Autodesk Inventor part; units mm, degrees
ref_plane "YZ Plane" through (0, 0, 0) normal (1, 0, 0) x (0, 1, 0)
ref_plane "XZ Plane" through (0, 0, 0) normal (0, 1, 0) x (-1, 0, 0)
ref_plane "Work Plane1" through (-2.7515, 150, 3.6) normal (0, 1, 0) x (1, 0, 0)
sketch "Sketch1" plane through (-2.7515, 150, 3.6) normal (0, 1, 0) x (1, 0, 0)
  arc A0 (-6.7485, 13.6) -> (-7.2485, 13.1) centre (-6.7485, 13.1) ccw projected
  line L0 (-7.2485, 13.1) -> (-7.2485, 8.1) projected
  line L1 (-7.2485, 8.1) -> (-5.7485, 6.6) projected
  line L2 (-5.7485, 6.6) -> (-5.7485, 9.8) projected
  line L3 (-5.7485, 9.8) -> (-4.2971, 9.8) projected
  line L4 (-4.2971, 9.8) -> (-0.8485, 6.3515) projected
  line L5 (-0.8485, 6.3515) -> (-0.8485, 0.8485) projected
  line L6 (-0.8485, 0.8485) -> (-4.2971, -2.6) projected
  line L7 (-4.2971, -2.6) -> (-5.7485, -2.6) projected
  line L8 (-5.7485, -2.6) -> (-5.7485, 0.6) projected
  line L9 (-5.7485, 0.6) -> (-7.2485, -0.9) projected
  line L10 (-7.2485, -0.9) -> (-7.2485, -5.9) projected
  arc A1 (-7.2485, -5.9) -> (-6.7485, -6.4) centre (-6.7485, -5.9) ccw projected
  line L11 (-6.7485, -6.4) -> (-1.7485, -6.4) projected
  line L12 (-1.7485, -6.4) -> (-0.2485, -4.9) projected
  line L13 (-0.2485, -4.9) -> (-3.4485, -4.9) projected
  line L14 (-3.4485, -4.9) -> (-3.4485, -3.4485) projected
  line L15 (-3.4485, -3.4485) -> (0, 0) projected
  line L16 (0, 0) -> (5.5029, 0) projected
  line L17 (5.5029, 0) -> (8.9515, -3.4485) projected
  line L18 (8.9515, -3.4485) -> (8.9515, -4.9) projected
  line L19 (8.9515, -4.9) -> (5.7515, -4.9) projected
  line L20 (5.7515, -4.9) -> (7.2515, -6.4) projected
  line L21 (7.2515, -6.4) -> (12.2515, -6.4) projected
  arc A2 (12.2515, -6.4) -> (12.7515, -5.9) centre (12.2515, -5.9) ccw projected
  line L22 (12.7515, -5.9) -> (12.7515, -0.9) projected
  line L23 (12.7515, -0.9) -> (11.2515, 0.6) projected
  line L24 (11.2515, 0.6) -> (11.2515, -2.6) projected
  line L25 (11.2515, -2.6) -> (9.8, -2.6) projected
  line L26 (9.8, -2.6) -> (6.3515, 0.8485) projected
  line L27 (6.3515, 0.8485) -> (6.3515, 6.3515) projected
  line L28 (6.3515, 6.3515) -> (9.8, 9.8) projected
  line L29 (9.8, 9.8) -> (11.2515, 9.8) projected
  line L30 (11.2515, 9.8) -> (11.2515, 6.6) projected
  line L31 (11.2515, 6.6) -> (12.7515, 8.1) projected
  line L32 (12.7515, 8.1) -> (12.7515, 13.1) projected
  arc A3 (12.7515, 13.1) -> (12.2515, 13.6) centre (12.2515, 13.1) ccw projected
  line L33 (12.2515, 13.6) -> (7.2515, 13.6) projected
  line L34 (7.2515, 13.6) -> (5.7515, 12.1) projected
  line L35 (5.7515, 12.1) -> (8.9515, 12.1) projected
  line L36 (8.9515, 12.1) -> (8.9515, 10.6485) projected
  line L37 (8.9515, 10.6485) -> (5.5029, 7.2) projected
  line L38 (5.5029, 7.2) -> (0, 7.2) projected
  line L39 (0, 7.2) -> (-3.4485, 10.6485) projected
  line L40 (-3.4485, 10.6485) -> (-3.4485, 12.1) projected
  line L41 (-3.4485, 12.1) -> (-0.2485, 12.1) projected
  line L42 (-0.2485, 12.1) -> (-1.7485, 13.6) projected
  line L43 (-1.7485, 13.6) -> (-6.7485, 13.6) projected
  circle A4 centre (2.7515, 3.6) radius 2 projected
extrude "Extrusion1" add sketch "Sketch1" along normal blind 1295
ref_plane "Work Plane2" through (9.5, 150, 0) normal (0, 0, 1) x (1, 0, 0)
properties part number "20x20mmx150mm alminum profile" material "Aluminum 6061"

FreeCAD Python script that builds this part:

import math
import FreeCAD as App
import Part
import Sketcher
from FreeCAD import Vector

doc = App.newDocument("Part")
body = doc.addObject("PartDesign::Body", "Body")

# Sketch on XZ plane
sketch1 = body.newObject("Sketcher::SketchObject", "Sketch")
sketch1.AttachmentSupport = (doc.getObject("XZ_Plane"), [""])
sketch1.MapMode = "FlatFace"
sketch1.AttachmentOffset = App.Placement(Vector(0, 0, -150), App.Rotation())
sketch1.addGeometry(Part.LineSegment(Vector(-4.5, -10, 0), Vector(-9.5, -10, 0)), False)
sketch1.addGeometry(Part.ArcOfCircle(Part.Circle(Vector(-9.5, -9.5, 0), Vector(0, 0, 1), 0.5), math.radians(180), math.radians(270)), False)
sketch1.addGeometry(Part.LineSegment(Vector(-10, -9.5, 0), Vector(-10, -4.5, 0)), False)
sketch1.addGeometry(Part.LineSegment(Vector(-10, -4.5, 0), Vector(-8.5, -3, 0)), False)
sketch1.addGeometry(Part.LineSegment(Vector(-8.5, -3, 0), Vector(-8.5, -6.2, 0)), False)
sketch1.addGeometry(Part.LineSegment(Vector(-8.5, -6.2, 0), Vector(-7, -6.2, 0)), False)
sketch1.addGeometry(Part.LineSegment(Vector(-7, -6.2, 0), Vector(-3.6, -2.8, 0)), False)
sketch1.addGeometry(Part.LineSegment(Vector(-3.6, -2.8, 0), Vector(-3.6, 2.8, 0)), False)
sketch1.addGeometry(Part.LineSegment(Vector(-3.6, 2.8, 0), Vector(-7, 6.2, 0)), False)
sketch1.addGeometry(Part.LineSegment(Vector(-7, 6.2, 0), Vector(-8.5, 6.2, 0)), False)
sketch1.addGeometry(Part.LineSegment(Vector(-8.5, 6.2, 0), Vector(-8.5, 3, 0)), False)
sketch1.addGeometry(Part.LineSegment(Vector(-8.5, 3, 0), Vector(-10, 4.5, 0)), False)
sketch1.addGeometry(Part.LineSegment(Vector(-10, 4.5, 0), Vector(-10, 9.5, 0)), False)
sketch1.addGeometry(Part.ArcOfCircle(Part.Circle(Vector(-9.5, 9.5, 0), Vector(0, 0, 1), 0.5), math.radians(90), math.radians(180)), False)
sketch1.addGeometry(Part.LineSegment(Vector(-9.5, 10, 0), Vector(-4.5, 10, 0)), False)
sketch1.addGeometry(Part.LineSegment(Vector(-4.5, 10, 0), Vector(-3, 8.5, 0)), False)
sketch1.addGeometry(Part.LineSegment(Vector(-3, 8.5, 0), Vector(-6.2, 8.5, 0)), False)
sketch1.addGeometry(Part.LineSegment(Vector(-6.2, 8.5, 0), Vector(-6.2, 7, 0)), False)
sketch1.addGeometry(Part.LineSegment(Vector(-6.2, 7, 0), Vector(-2.8, 3.6, 0)), False)
sketch1.addGeometry(Part.LineSegment(Vector(-2.8, 3.6, 0), Vector(2.8, 3.6, 0)), False)
sketch1.addGeometry(Part.LineSegment(Vector(2.8, 3.6, 0), Vector(6.2, 7, 0)), False)
sketch1.addGeometry(Part.LineSegment(Vector(6.2, 7, 0), Vector(6.2, 8.5, 0)), False)
sketch1.addGeometry(Part.LineSegment(Vector(6.2, 8.5, 0), Vector(3, 8.5, 0)), False)
sketch1.addGeometry(Part.LineSegment(Vector(3, 8.5, 0), Vector(4.5, 10, 0)), False)
sketch1.addGeometry(Part.LineSegment(Vector(4.5, 10, 0), Vector(9.5, 10, 0)), False)
sketch1.addGeometry(Part.ArcOfCircle(Part.Circle(Vector(9.5, 9.5, 0), Vector(0, 0, 1), 0.5), math.radians(0), math.radians(90)), False)
sketch1.addGeometry(Part.LineSegment(Vector(10, 9.5, 0), Vector(10, 4.5, 0)), False)
sketch1.addGeometry(Part.LineSegment(Vector(10, 4.5, 0), Vector(8.5, 3, 0)), False)
sketch1.addGeometry(Part.LineSegment(Vector(8.5, 3, 0), Vector(8.5, 6.2, 0)), False)
sketch1.addGeometry(Part.LineSegment(Vector(8.5, 6.2, 0), Vector(7, 6.2, 0)), False)
sketch1.addGeometry(Part.LineSegment(Vector(7, 6.2, 0), Vector(3.6, 2.8, 0)), False)
sketch1.addGeometry(Part.LineSegment(Vector(3.6, 2.8, 0), Vector(3.6, -2.8, 0)), False)
sketch1.addGeometry(Part.LineSegment(Vector(3.6, -2.8, 0), Vector(7, -6.2, 0)), False)
sketch1.addGeometry(Part.LineSegment(Vector(7, -6.2, 0), Vector(8.5, -6.2, 0)), False)
sketch1.addGeometry(Part.LineSegment(Vector(8.5, -6.2, 0), Vector(8.5, -3, 0)), False)
sketch1.addGeometry(Part.LineSegment(Vector(8.5, -3, 0), Vector(10, -4.5, 0)), False)
sketch1.addGeometry(Part.LineSegment(Vector(10, -4.5, 0), Vector(10, -9.5, 0)), False)
sketch1.addGeometry(Part.ArcOfCircle(Part.Circle(Vector(9.5, -9.5, 0), Vector(0, 0, 1), 0.5), math.radians(-90), math.radians(0)), False)
sketch1.addGeometry(Part.LineSegment(Vector(9.5, -10, 0), Vector(4.5, -10, 0)), False)
sketch1.addGeometry(Part.LineSegment(Vector(4.5, -10, 0), Vector(3, -8.5, 0)), False)
sketch1.addGeometry(Part.LineSegment(Vector(3, -8.5, 0), Vector(6.2, -8.5, 0)), False)
sketch1.addGeometry(Part.LineSegment(Vector(6.2, -8.5, 0), Vector(6.2, -7, 0)), False)
sketch1.addGeometry(Part.LineSegment(Vector(6.2, -7, 0), Vector(2.8, -3.6, 0)), False)
sketch1.addGeometry(Part.LineSegment(Vector(2.8, -3.6, 0), Vector(-2.8, -3.6, 0)), False)
sketch1.addGeometry(Part.LineSegment(Vector(-2.8, -3.6, 0), Vector(-6.2, -7, 0)), False)
sketch1.addGeometry(Part.LineSegment(Vector(-6.2, -7, 0), Vector(-6.2, -8.5, 0)), False)
sketch1.addGeometry(Part.LineSegment(Vector(-6.2, -8.5, 0), Vector(-3, -8.5, 0)), False)
sketch1.addGeometry(Part.LineSegment(Vector(-3, -8.5, 0), Vector(-4.5, -10, 0)), False)
sketch1.addGeometry(Part.Circle(Vector(0, 0, 0), Vector(0, 0, 1), 2), False)
sketch1.addConstraint(Sketcher.Constraint("Tangent", 0, 2, 1, 2))
sketch1.addConstraint(Sketcher.Constraint("Tangent", 1, 1, 2, 1))
sketch1.addConstraint(Sketcher.Constraint("Coincident", 2, 2, 3, 1))
sketch1.addConstraint(Sketcher.Constraint("Coincident", 3, 2, 4, 1))
sketch1.addConstraint(Sketcher.Constraint("Coincident", 4, 2, 5, 1))
sketch1.addConstraint(Sketcher.Constraint("Coincident", 5, 2, 6, 1))
sketch1.addConstraint(Sketcher.Constraint("Coincident", 6, 2, 7, 1))
sketch1.addConstraint(Sketcher.Constraint("Coincident", 7, 2, 8, 1))
sketch1.addConstraint(Sketcher.Constraint("Coincident", 8, 2, 9, 1))
sketch1.addConstraint(Sketcher.Constraint("Coincident", 9, 2, 10, 1))
sketch1.addConstraint(Sketcher.Constraint("Coincident", 10, 2, 11, 1))
sketch1.addConstraint(Sketcher.Constraint("Coincident", 11, 2, 12, 1))
sketch1.addConstraint(Sketcher.Constraint("Tangent", 12, 2, 13, 2))
sketch1.addConstraint(Sketcher.Constraint("Tangent", 13, 1, 14, 1))
sketch1.addConstraint(Sketcher.Constraint("Coincident", 14, 2, 15, 1))
sketch1.addConstraint(Sketcher.Constraint("Coincident", 15, 2, 16, 1))
sketch1.addConstraint(Sketcher.Constraint("Coincident", 16, 2, 17, 1))
sketch1.addConstraint(Sketcher.Constraint("Coincident", 17, 2, 18, 1))
sketch1.addConstraint(Sketcher.Constraint("Coincident", 18, 2, 19, 1))
sketch1.addConstraint(Sketcher.Constraint("Coincident", 19, 2, 20, 1))
sketch1.addConstraint(Sketcher.Constraint("Coincident", 20, 2, 21, 1))
sketch1.addConstraint(Sketcher.Constraint("Coincident", 21, 2, 22, 1))
sketch1.addConstraint(Sketcher.Constraint("Coincident", 22, 2, 23, 1))
sketch1.addConstraint(Sketcher.Constraint("Coincident", 23, 2, 24, 1))
sketch1.addConstraint(Sketcher.Constraint("Tangent", 24, 2, 25, 2))
sketch1.addConstraint(Sketcher.Constraint("Tangent", 25, 1, 26, 1))
sketch1.addConstraint(Sketcher.Constraint("Coincident", 26, 2, 27, 1))
sketch1.addConstraint(Sketcher.Constraint("Coincident", 27, 2, 28, 1))
sketch1.addConstraint(Sketcher.Constraint("Coincident", 28, 2, 29, 1))
sketch1.addConstraint(Sketcher.Constraint("Coincident", 29, 2, 30, 1))
sketch1.addConstraint(Sketcher.Constraint("Coincident", 30, 2, 31, 1))
sketch1.addConstraint(Sketcher.Constraint("Coincident", 31, 2, 32, 1))
sketch1.addConstraint(Sketcher.Constraint("Coincident", 32, 2, 33, 1))
sketch1.addConstraint(Sketcher.Constraint("Coincident", 33, 2, 34, 1))
sketch1.addConstraint(Sketcher.Constraint("Coincident", 34, 2, 35, 1))
sketch1.addConstraint(Sketcher.Constraint("Coincident", 35, 2, 36, 1))
sketch1.addConstraint(Sketcher.Constraint("Tangent", 36, 2, 37, 2))
sketch1.addConstraint(Sketcher.Constraint("Tangent", 37, 1, 38, 1))
sketch1.addConstraint(Sketcher.Constraint("Coincident", 38, 2, 39, 1))
sketch1.addConstraint(Sketcher.Constraint("Coincident", 39, 2, 40, 1))
sketch1.addConstraint(Sketcher.Constraint("Coincident", 40, 2, 41, 1))
sketch1.addConstraint(Sketcher.Constraint("Coincident", 41, 2, 42, 1))
sketch1.addConstraint(Sketcher.Constraint("Coincident", 42, 2, 43, 1))
sketch1.addConstraint(Sketcher.Constraint("Coincident", 43, 2, 44, 1))
sketch1.addConstraint(Sketcher.Constraint("Coincident", 44, 2, 45, 1))
sketch1.addConstraint(Sketcher.Constraint("Coincident", 45, 2, 46, 1))
sketch1.addConstraint(Sketcher.Constraint("Coincident", 46, 2, 47, 1))
sketch1.addConstraint(Sketcher.Constraint("Coincident", 47, 2, 0, 1))
sketch1.addConstraint(Sketcher.Constraint("Horizontal", 0))
sketch1.addConstraint(Sketcher.Constraint("Vertical", 2))
sketch1.addConstraint(Sketcher.Constraint("Vertical", 4))
sketch1.addConstraint(Sketcher.Constraint("Horizontal", 5))
sketch1.addConstraint(Sketcher.Constraint("Vertical", 7))
sketch1.addConstraint(Sketcher.Constraint("Horizontal", 9))
sketch1.addConstraint(Sketcher.Constraint("Vertical", 10))
sketch1.addConstraint(Sketcher.Constraint("Vertical", 12))
sketch1.addConstraint(Sketcher.Constraint("Horizontal", 14))
sketch1.addConstraint(Sketcher.Constraint("Horizontal", 16))
sketch1.addConstraint(Sketcher.Constraint("Vertical", 17))
sketch1.addConstraint(Sketcher.Constraint("Horizontal", 19))
sketch1.addConstraint(Sketcher.Constraint("Vertical", 21))
sketch1.addConstraint(Sketcher.Constraint("Horizontal", 22))
sketch1.addConstraint(Sketcher.Constraint("Horizontal", 24))
sketch1.addConstraint(Sketcher.Constraint("Vertical", 26))
sketch1.addConstraint(Sketcher.Constraint("Vertical", 28))
sketch1.addConstraint(Sketcher.Constraint("Horizontal", 29))
sketch1.addConstraint(Sketcher.Constraint("Vertical", 31))
sketch1.addConstraint(Sketcher.Constraint("Horizontal", 33))
sketch1.addConstraint(Sketcher.Constraint("Vertical", 34))
sketch1.addConstraint(Sketcher.Constraint("Vertical", 36))
sketch1.addConstraint(Sketcher.Constraint("Horizontal", 38))
sketch1.addConstraint(Sketcher.Constraint("Horizontal", 40))
sketch1.addConstraint(Sketcher.Constraint("Vertical", 41))
sketch1.addConstraint(Sketcher.Constraint("Horizontal", 43))
sketch1.addConstraint(Sketcher.Constraint("Vertical", 45))
sketch1.addConstraint(Sketcher.Constraint("Horizontal", 46))
sketch1.addConstraint(Sketcher.Constraint("Coincident", 48, 3, -1, 1))
sketch1.addConstraint(Sketcher.Constraint("Equal", 1, 13))
sketch1.addConstraint(Sketcher.Constraint("Equal", 13, 25))
sketch1.addConstraint(Sketcher.Constraint("Equal", 25, 37))
sketch1.addConstraint(Sketcher.Constraint("Symmetric", 1, 3, 25, 3, -1, 1))
sketch1.addConstraint(Sketcher.Constraint("Symmetric", 13, 3, 37, 3, -1, 1))
sketch1.addConstraint(Sketcher.Constraint("Symmetric", 3, 2, 27, 2, -1, 1))
sketch1.addConstraint(Sketcher.Constraint("Symmetric", 5, 2, 29, 2, -1, 1))
sketch1.addConstraint(Sketcher.Constraint("Symmetric", 6, 2, 30, 2, -1, 1))
sketch1.addConstraint(Sketcher.Constraint("Symmetric", 8, 2, 32, 2, -1, 1))
sketch1.addConstraint(Sketcher.Constraint("Symmetric", 10, 2, 34, 2, -1, 1))
sketch1.addConstraint(Sketcher.Constraint("Symmetric", 15, 2, 39, 2, -1, 1))
sketch1.addConstraint(Sketcher.Constraint("Symmetric", 17, 2, 41, 2, -1, 1))
sketch1.addConstraint(Sketcher.Constraint("Symmetric", 18, 2, 42, 2, -1, 1))
sketch1.addConstraint(Sketcher.Constraint("Symmetric", 20, 2, 44, 2, -1, 1))
sketch1.addConstraint(Sketcher.Constraint("Symmetric", 22, 2, 46, 2, -1, 1))
sketch1.addConstraint(Sketcher.Constraint("Symmetric", 13, 3, 25, 3, -2))
sketch1.addConstraint(Sketcher.Constraint("Symmetric", 17, 2, 20, 2, -2))
sketch1.addConstraint(Sketcher.Constraint("Symmetric", 15, 2, 22, 2, -2))
sketch1.addConstraint(Sketcher.Constraint("Symmetric", 10, 2, 27, 2, -2))
sketch1.addConstraint(Sketcher.Constraint("Symmetric", 8, 2, 29, 2, -2))
sketch1.addConstraint(Sketcher.Constraint("Parallel", 3, 6))
sketch1.addConstraint(Sketcher.Constraint("Perpendicular", 6, 8))
sketch1.addConstraint(Sketcher.Constraint("Parallel", 8, 11))
sketch1.addConstraint(Sketcher.Constraint("Parallel", 11, 15))
sketch1.addConstraint(Sketcher.Constraint("Parallel", 15, 18))
sketch1.addConstraint(Sketcher.Constraint("Perpendicular", 18, 20))
sketch1.addConstraint(Sketcher.Constraint("Parallel", 20, 23))
sketch1.addConstraint(Sketcher.Constraint("Parallel", 23, 27))
sketch1.addConstraint(Sketcher.Constraint("Perpendicular", 30, 32))
sketch1.addConstraint(Sketcher.Constraint("Parallel", 32, 35))
sketch1.addConstraint(Sketcher.Constraint("Parallel", 35, 39))
sketch1.addConstraint(Sketcher.Constraint("Perpendicular", 42, 44))
sketch1.addConstraint(Sketcher.Constraint("Parallel", 44, 47))
sketch1.addConstraint(Sketcher.Constraint("Horizontal", 11, 2, 26, 2))
sketch1.addConstraint(Sketcher.Constraint("Equal", 38, 2))
sketch1.addConstraint(Sketcher.Constraint("Equal", 46, 4))
sketch1.addConstraint(Sketcher.Constraint("Equal", 43, 7))
sketch1.addConstraint(Sketcher.Constraint("Equal", 33, 17))
sketch1.addConstraint(Sketcher.Constraint("Equal", 11, 15))
sketch1.addConstraint(Sketcher.Constraint("Equal", 8, 18))
sketch1.addConstraint(Sketcher.Constraint("Diameter", 48, 4.0))
sketch1.addConstraint(Sketcher.Constraint("Radius", 1, 0.5))
sketch1.addConstraint(Sketcher.Constraint("DistanceX", 0, 2, 0, 1, 5.0))
sketch1.addConstraint(Sketcher.Constraint("DistanceX", 16, 2, 16, 1, 3.2))
sketch1.addConstraint(Sketcher.Constraint("DistanceY", 0, 2, -1, 1, 10.0))
sketch1.addConstraint(Sketcher.Constraint("DistanceY", 3, 2, -1, 1, 3.0))
sketch1.addConstraint(Sketcher.Constraint("DistanceX", 6, 2, -1, 1, 3.6))
sketch1.addConstraint(Sketcher.Constraint("DistanceX", 19, 1, 19, 2, 5.503))
pad1 = body.newObject("PartDesign::Pad", "Pad")
pad1.Profile = sketch1
pad1.Length = 1295
pad1.Reversed = True

doc.recompute()
